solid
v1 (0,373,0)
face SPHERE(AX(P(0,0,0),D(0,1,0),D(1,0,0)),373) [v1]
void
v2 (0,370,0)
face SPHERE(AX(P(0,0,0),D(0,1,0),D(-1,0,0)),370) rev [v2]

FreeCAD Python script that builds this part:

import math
import FreeCAD as App
import Part
import Sketcher

doc = App.newDocument("Part")
body = doc.addObject("PartDesign::Body", "Body")

sketch1 = body.newObject("Sketcher::SketchObject", "Sketch")
sketch1.AttachmentSupport = (doc.getObject("XY_Plane"), [""])
sketch1.MapMode = "FlatFace"
sketch1.addGeometry(Part.LineSegment(App.Vector(0, 370, 0), App.Vector(0, 373, 0)), False)
sketch1.addGeometry(Part.ArcOfCircle(Part.Circle(App.Vector(0, 0, 0), App.Vector(0, 0, 1), 373), math.radians(90), math.radians(270)), False)
sketch1.addGeometry(Part.LineSegment(App.Vector(0, -373, 0), App.Vector(0, -370, 0)), False)
sketch1.addGeometry(Part.ArcOfCircle(Part.Circle(App.Vector(0, 0, 0), App.Vector(0, 0, 1), 370), math.radians(90), math.radians(270)), False)
sketch1.addConstraint(Sketcher.Constraint("Coincident", 0, 2, 1, 1))
sketch1.addConstraint(Sketcher.Constraint("Coincident", 1, 2, 2, 1))
sketch1.addConstraint(Sketcher.Constraint("Coincident", 2, 2, 3, 2))
sketch1.addConstraint(Sketcher.Constraint("Coincident", 3, 1, 0, 1))
sketch1.addConstraint(Sketcher.Constraint("Vertical", 0))
sketch1.addConstraint(Sketcher.Constraint("Vertical", 2))
sketch1.addConstraint(Sketcher.Constraint("Coincident", 1, 3, -1, 1))
sketch1.addConstraint(Sketcher.Constraint("Coincident", 3, 3, -1, 1))
sketch1.addConstraint(Sketcher.Constraint("PointOnObject", 0, 2, -2))
sketch1.addConstraint(Sketcher.Constraint("PointOnObject", 2, 2, -2))
sketch1.addConstraint(Sketcher.Constraint("Radius", 1, 373.0))
sketch1.addConstraint(Sketcher.Constraint("Radius", 3, 370.0))
revolution = body.newObject("PartDesign::Revolution", "Revolution")
revolution.Profile = sketch1
revolution.ReferenceAxis = (sketch1, ["V_Axis"])
revolution.Angle = 360

doc.recompute()
